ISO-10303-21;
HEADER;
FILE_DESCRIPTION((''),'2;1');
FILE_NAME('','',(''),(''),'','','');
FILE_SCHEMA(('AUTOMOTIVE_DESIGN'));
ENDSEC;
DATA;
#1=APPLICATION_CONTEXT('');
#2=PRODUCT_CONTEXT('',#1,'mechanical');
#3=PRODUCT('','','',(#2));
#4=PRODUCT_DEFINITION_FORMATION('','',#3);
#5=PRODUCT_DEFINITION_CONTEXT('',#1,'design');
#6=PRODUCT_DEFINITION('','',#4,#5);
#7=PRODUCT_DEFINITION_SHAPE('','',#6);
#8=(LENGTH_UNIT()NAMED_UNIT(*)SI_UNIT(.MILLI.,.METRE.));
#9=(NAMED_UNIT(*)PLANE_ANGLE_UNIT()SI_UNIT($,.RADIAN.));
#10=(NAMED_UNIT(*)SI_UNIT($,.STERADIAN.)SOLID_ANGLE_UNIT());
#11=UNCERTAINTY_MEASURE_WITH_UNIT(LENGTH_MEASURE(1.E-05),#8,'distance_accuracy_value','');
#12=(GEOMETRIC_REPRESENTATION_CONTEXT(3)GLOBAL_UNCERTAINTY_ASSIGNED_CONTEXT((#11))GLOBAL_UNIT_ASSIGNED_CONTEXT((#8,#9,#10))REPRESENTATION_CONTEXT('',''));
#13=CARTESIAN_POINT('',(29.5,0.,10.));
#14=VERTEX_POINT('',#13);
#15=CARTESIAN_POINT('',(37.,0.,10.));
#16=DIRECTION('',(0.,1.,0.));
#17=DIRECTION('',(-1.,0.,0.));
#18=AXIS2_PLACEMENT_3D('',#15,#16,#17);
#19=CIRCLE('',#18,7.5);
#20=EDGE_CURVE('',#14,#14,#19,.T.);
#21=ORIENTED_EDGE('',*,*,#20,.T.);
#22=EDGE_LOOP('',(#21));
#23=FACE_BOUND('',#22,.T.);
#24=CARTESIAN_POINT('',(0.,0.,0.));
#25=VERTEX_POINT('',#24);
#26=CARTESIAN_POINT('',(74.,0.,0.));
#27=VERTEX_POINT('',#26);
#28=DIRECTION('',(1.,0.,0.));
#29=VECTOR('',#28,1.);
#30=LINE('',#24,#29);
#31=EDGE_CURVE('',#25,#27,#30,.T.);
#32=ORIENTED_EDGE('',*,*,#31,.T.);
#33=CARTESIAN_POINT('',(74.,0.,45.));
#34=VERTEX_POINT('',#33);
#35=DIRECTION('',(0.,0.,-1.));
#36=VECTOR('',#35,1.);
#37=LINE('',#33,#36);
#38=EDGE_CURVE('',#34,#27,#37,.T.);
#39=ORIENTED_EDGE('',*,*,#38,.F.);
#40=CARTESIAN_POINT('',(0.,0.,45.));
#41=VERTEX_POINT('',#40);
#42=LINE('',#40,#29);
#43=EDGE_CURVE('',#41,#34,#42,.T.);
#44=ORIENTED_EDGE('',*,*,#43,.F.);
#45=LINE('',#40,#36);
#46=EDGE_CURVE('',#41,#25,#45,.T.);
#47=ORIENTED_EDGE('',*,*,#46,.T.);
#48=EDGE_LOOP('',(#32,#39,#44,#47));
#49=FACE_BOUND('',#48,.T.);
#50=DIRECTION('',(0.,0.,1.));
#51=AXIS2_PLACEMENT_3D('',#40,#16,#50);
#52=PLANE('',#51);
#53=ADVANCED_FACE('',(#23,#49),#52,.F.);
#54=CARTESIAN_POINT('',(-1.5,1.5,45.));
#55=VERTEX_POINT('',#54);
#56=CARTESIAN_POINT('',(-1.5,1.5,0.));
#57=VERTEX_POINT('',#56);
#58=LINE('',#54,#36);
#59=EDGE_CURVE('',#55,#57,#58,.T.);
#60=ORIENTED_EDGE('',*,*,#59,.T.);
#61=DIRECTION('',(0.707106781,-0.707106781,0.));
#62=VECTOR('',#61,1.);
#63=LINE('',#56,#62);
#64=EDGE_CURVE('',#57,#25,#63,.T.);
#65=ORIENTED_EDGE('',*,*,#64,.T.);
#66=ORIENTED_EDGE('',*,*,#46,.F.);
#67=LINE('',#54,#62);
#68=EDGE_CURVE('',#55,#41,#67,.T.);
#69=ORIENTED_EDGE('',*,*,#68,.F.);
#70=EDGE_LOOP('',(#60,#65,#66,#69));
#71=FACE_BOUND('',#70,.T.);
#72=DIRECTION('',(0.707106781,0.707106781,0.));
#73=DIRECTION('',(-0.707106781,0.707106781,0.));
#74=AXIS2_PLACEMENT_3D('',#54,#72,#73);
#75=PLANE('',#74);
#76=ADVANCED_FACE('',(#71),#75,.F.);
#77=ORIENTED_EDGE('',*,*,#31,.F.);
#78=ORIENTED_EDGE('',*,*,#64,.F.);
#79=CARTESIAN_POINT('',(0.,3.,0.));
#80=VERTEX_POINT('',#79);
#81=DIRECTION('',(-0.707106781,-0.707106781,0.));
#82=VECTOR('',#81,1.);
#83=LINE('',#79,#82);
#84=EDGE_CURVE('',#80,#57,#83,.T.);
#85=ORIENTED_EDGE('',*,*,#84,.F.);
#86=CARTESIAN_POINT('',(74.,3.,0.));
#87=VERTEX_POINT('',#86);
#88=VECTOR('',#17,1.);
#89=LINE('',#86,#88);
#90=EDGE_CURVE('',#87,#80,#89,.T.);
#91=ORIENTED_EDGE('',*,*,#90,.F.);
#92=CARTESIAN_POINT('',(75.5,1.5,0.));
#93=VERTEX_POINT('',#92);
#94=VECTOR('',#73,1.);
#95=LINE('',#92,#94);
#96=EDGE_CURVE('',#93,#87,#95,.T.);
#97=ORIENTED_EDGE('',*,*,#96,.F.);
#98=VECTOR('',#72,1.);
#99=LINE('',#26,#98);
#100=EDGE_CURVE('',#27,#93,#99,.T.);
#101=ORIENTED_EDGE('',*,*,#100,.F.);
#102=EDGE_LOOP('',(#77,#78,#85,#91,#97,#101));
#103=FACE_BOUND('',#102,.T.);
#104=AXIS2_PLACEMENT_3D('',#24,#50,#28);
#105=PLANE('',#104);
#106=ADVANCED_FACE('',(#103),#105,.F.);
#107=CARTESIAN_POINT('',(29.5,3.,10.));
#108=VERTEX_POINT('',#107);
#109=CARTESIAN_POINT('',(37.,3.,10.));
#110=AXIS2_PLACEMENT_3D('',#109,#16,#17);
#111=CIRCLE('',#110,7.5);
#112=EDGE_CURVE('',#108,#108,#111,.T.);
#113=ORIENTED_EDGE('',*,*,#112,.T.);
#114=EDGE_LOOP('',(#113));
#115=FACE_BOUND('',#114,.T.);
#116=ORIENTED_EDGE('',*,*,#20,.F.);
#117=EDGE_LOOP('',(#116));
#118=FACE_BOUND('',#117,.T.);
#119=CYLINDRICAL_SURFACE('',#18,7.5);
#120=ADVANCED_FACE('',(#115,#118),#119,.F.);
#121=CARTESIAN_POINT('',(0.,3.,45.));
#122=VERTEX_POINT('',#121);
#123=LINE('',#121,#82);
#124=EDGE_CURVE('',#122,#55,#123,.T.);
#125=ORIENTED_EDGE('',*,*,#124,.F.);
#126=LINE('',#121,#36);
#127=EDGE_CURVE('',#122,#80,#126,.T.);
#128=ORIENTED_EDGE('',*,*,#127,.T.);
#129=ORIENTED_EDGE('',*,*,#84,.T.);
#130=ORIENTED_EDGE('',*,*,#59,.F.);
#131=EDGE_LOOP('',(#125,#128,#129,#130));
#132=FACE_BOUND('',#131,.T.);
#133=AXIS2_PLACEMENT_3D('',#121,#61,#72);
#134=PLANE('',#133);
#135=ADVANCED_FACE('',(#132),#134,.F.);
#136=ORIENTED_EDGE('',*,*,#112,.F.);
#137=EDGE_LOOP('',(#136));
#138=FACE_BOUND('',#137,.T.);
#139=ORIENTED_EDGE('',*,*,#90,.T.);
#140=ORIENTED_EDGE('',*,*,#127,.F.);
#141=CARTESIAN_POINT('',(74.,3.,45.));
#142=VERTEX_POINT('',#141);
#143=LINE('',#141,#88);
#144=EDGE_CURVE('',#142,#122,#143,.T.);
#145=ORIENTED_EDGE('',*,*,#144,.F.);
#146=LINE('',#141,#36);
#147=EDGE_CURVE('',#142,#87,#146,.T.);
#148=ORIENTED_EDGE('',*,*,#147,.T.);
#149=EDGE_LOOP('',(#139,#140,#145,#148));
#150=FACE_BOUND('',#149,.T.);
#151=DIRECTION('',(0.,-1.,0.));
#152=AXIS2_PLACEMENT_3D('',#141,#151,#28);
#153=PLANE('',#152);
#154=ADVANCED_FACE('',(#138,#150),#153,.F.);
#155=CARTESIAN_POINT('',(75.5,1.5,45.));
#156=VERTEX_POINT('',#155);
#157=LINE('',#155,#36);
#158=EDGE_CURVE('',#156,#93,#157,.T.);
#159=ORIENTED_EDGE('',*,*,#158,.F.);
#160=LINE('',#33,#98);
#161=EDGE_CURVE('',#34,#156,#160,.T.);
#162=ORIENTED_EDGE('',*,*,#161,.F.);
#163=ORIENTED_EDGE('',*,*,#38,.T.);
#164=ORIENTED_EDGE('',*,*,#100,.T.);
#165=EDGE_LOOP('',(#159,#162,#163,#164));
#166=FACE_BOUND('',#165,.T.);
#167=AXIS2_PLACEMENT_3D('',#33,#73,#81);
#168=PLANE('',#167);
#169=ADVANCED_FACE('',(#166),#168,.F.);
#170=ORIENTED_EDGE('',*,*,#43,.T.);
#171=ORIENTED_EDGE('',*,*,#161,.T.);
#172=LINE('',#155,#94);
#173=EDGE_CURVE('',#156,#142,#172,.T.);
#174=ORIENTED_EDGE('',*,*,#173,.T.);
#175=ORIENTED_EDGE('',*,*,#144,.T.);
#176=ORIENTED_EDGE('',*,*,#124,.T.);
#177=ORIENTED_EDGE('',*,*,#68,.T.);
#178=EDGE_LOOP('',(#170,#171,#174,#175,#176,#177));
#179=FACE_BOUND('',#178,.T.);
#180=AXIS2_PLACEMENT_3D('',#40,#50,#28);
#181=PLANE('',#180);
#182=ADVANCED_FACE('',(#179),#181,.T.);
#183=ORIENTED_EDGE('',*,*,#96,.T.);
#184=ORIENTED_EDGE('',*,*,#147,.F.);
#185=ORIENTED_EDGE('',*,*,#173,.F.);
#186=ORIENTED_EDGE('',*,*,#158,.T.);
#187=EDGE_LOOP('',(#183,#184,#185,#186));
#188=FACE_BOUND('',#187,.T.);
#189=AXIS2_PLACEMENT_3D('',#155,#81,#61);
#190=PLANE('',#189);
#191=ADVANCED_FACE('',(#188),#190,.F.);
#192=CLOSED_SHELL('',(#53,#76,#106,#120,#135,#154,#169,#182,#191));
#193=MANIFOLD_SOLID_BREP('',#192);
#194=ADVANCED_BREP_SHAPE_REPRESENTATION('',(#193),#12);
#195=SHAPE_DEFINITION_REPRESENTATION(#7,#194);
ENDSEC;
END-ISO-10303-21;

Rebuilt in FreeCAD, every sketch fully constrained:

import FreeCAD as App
import Part
import Sketcher
from FreeCAD import Vector
Q = App.Units.Quantity

doc = App.newDocument("Part")
body = doc.addObject("PartDesign::Body", "Body")

# Sketch on XY plane
sketch1 = body.newObject("Sketcher::SketchObject", "Sketch")
sketch1.AttachmentSupport = (doc.getObject("XY_Plane"), [""])
sketch1.MapMode = "FlatFace"
sketch1.addGeometry([
    Part.LineSegment(Vector(0, 0, 0), Vector(74, 0, 0)),  # 0
    Part.LineSegment(Vector(74, 0, 0), Vector(75.5, 1.5, 0)),  # 1
    Part.LineSegment(Vector(75.5, 1.5, 0), Vector(74, 3, 0)),  # 2
    Part.LineSegment(Vector(74, 3, 0), Vector(0, 3, 0)),  # 3
    Part.LineSegment(Vector(0, 3, 0), Vector(-1.5, 1.5, 0)),  # 4
    Part.LineSegment(Vector(-1.5, 1.5, 0), Vector(0, 0, 0)),  # 5
], False)
sketch1.addConstraint([
    Sketcher.Constraint("Coincident", 0, 2, 1, 1),
    Sketcher.Constraint("Coincident", 1, 2, 2, 1),
    Sketcher.Constraint("Coincident", 2, 2, 3, 1),
    Sketcher.Constraint("Coincident", 3, 2, 4, 1),
    Sketcher.Constraint("Coincident", 4, 2, 5, 1),
    Sketcher.Constraint("Coincident", 5, 2, 0, 1),
    Sketcher.Constraint("Horizontal", 0),
    Sketcher.Constraint("Horizontal", 3),
    Sketcher.Constraint("Coincident", 5, 2, -1, 1),
    Sketcher.Constraint("PointOnObject", 3, 2, -2),
    Sketcher.Constraint("Perpendicular", 1, 2),
    Sketcher.Constraint("Perpendicular", 2, 4),
    Sketcher.Constraint("Perpendicular", 4, 5),
    Sketcher.Constraint("Horizontal", 1, 2, 4, 2),
    Sketcher.Constraint("Vertical", 0, 2, 2, 2),
    Sketcher.Constraint("DistanceX", 0, 1, 0, 2, Q("74 mm")),
    Sketcher.Constraint("DistanceY", -1, 1, 2, 2, Q("3 mm")),
])
pad1 = body.newObject("PartDesign::Pad", "Pad")
pad1.Profile = sketch1
pad1.Length = 45

# Sketch on XZ plane
sketch2 = body.newObject("Sketcher::SketchObject", "Sketch001")
sketch2.AttachmentSupport = (doc.getObject("XZ_Plane"), [""])
sketch2.MapMode = "FlatFace"
sketch2.AttachmentOffset = App.Placement(Vector(0, 0, -3), App.Rotation())
sketch2.addGeometry(Part.Circle(Vector(37, 10, 0), Vector(0, 0, 1), 8), False)
sketch2.addConstraint([
    Sketcher.Constraint("Diameter", 0, Q("15 mm")),
    Sketcher.Constraint("DistanceX", -1, 1, 0, 3, Q("37 mm")),
    Sketcher.Constraint("DistanceY", -1, 1, 0, 3, Q("10 mm")),
])
pocket1 = body.newObject("PartDesign::Pocket", "Pocket")
pocket1.Profile = sketch2
pocket1.Type = "ThroughAll"
pocket1.Reversed = True

doc.recompute()
